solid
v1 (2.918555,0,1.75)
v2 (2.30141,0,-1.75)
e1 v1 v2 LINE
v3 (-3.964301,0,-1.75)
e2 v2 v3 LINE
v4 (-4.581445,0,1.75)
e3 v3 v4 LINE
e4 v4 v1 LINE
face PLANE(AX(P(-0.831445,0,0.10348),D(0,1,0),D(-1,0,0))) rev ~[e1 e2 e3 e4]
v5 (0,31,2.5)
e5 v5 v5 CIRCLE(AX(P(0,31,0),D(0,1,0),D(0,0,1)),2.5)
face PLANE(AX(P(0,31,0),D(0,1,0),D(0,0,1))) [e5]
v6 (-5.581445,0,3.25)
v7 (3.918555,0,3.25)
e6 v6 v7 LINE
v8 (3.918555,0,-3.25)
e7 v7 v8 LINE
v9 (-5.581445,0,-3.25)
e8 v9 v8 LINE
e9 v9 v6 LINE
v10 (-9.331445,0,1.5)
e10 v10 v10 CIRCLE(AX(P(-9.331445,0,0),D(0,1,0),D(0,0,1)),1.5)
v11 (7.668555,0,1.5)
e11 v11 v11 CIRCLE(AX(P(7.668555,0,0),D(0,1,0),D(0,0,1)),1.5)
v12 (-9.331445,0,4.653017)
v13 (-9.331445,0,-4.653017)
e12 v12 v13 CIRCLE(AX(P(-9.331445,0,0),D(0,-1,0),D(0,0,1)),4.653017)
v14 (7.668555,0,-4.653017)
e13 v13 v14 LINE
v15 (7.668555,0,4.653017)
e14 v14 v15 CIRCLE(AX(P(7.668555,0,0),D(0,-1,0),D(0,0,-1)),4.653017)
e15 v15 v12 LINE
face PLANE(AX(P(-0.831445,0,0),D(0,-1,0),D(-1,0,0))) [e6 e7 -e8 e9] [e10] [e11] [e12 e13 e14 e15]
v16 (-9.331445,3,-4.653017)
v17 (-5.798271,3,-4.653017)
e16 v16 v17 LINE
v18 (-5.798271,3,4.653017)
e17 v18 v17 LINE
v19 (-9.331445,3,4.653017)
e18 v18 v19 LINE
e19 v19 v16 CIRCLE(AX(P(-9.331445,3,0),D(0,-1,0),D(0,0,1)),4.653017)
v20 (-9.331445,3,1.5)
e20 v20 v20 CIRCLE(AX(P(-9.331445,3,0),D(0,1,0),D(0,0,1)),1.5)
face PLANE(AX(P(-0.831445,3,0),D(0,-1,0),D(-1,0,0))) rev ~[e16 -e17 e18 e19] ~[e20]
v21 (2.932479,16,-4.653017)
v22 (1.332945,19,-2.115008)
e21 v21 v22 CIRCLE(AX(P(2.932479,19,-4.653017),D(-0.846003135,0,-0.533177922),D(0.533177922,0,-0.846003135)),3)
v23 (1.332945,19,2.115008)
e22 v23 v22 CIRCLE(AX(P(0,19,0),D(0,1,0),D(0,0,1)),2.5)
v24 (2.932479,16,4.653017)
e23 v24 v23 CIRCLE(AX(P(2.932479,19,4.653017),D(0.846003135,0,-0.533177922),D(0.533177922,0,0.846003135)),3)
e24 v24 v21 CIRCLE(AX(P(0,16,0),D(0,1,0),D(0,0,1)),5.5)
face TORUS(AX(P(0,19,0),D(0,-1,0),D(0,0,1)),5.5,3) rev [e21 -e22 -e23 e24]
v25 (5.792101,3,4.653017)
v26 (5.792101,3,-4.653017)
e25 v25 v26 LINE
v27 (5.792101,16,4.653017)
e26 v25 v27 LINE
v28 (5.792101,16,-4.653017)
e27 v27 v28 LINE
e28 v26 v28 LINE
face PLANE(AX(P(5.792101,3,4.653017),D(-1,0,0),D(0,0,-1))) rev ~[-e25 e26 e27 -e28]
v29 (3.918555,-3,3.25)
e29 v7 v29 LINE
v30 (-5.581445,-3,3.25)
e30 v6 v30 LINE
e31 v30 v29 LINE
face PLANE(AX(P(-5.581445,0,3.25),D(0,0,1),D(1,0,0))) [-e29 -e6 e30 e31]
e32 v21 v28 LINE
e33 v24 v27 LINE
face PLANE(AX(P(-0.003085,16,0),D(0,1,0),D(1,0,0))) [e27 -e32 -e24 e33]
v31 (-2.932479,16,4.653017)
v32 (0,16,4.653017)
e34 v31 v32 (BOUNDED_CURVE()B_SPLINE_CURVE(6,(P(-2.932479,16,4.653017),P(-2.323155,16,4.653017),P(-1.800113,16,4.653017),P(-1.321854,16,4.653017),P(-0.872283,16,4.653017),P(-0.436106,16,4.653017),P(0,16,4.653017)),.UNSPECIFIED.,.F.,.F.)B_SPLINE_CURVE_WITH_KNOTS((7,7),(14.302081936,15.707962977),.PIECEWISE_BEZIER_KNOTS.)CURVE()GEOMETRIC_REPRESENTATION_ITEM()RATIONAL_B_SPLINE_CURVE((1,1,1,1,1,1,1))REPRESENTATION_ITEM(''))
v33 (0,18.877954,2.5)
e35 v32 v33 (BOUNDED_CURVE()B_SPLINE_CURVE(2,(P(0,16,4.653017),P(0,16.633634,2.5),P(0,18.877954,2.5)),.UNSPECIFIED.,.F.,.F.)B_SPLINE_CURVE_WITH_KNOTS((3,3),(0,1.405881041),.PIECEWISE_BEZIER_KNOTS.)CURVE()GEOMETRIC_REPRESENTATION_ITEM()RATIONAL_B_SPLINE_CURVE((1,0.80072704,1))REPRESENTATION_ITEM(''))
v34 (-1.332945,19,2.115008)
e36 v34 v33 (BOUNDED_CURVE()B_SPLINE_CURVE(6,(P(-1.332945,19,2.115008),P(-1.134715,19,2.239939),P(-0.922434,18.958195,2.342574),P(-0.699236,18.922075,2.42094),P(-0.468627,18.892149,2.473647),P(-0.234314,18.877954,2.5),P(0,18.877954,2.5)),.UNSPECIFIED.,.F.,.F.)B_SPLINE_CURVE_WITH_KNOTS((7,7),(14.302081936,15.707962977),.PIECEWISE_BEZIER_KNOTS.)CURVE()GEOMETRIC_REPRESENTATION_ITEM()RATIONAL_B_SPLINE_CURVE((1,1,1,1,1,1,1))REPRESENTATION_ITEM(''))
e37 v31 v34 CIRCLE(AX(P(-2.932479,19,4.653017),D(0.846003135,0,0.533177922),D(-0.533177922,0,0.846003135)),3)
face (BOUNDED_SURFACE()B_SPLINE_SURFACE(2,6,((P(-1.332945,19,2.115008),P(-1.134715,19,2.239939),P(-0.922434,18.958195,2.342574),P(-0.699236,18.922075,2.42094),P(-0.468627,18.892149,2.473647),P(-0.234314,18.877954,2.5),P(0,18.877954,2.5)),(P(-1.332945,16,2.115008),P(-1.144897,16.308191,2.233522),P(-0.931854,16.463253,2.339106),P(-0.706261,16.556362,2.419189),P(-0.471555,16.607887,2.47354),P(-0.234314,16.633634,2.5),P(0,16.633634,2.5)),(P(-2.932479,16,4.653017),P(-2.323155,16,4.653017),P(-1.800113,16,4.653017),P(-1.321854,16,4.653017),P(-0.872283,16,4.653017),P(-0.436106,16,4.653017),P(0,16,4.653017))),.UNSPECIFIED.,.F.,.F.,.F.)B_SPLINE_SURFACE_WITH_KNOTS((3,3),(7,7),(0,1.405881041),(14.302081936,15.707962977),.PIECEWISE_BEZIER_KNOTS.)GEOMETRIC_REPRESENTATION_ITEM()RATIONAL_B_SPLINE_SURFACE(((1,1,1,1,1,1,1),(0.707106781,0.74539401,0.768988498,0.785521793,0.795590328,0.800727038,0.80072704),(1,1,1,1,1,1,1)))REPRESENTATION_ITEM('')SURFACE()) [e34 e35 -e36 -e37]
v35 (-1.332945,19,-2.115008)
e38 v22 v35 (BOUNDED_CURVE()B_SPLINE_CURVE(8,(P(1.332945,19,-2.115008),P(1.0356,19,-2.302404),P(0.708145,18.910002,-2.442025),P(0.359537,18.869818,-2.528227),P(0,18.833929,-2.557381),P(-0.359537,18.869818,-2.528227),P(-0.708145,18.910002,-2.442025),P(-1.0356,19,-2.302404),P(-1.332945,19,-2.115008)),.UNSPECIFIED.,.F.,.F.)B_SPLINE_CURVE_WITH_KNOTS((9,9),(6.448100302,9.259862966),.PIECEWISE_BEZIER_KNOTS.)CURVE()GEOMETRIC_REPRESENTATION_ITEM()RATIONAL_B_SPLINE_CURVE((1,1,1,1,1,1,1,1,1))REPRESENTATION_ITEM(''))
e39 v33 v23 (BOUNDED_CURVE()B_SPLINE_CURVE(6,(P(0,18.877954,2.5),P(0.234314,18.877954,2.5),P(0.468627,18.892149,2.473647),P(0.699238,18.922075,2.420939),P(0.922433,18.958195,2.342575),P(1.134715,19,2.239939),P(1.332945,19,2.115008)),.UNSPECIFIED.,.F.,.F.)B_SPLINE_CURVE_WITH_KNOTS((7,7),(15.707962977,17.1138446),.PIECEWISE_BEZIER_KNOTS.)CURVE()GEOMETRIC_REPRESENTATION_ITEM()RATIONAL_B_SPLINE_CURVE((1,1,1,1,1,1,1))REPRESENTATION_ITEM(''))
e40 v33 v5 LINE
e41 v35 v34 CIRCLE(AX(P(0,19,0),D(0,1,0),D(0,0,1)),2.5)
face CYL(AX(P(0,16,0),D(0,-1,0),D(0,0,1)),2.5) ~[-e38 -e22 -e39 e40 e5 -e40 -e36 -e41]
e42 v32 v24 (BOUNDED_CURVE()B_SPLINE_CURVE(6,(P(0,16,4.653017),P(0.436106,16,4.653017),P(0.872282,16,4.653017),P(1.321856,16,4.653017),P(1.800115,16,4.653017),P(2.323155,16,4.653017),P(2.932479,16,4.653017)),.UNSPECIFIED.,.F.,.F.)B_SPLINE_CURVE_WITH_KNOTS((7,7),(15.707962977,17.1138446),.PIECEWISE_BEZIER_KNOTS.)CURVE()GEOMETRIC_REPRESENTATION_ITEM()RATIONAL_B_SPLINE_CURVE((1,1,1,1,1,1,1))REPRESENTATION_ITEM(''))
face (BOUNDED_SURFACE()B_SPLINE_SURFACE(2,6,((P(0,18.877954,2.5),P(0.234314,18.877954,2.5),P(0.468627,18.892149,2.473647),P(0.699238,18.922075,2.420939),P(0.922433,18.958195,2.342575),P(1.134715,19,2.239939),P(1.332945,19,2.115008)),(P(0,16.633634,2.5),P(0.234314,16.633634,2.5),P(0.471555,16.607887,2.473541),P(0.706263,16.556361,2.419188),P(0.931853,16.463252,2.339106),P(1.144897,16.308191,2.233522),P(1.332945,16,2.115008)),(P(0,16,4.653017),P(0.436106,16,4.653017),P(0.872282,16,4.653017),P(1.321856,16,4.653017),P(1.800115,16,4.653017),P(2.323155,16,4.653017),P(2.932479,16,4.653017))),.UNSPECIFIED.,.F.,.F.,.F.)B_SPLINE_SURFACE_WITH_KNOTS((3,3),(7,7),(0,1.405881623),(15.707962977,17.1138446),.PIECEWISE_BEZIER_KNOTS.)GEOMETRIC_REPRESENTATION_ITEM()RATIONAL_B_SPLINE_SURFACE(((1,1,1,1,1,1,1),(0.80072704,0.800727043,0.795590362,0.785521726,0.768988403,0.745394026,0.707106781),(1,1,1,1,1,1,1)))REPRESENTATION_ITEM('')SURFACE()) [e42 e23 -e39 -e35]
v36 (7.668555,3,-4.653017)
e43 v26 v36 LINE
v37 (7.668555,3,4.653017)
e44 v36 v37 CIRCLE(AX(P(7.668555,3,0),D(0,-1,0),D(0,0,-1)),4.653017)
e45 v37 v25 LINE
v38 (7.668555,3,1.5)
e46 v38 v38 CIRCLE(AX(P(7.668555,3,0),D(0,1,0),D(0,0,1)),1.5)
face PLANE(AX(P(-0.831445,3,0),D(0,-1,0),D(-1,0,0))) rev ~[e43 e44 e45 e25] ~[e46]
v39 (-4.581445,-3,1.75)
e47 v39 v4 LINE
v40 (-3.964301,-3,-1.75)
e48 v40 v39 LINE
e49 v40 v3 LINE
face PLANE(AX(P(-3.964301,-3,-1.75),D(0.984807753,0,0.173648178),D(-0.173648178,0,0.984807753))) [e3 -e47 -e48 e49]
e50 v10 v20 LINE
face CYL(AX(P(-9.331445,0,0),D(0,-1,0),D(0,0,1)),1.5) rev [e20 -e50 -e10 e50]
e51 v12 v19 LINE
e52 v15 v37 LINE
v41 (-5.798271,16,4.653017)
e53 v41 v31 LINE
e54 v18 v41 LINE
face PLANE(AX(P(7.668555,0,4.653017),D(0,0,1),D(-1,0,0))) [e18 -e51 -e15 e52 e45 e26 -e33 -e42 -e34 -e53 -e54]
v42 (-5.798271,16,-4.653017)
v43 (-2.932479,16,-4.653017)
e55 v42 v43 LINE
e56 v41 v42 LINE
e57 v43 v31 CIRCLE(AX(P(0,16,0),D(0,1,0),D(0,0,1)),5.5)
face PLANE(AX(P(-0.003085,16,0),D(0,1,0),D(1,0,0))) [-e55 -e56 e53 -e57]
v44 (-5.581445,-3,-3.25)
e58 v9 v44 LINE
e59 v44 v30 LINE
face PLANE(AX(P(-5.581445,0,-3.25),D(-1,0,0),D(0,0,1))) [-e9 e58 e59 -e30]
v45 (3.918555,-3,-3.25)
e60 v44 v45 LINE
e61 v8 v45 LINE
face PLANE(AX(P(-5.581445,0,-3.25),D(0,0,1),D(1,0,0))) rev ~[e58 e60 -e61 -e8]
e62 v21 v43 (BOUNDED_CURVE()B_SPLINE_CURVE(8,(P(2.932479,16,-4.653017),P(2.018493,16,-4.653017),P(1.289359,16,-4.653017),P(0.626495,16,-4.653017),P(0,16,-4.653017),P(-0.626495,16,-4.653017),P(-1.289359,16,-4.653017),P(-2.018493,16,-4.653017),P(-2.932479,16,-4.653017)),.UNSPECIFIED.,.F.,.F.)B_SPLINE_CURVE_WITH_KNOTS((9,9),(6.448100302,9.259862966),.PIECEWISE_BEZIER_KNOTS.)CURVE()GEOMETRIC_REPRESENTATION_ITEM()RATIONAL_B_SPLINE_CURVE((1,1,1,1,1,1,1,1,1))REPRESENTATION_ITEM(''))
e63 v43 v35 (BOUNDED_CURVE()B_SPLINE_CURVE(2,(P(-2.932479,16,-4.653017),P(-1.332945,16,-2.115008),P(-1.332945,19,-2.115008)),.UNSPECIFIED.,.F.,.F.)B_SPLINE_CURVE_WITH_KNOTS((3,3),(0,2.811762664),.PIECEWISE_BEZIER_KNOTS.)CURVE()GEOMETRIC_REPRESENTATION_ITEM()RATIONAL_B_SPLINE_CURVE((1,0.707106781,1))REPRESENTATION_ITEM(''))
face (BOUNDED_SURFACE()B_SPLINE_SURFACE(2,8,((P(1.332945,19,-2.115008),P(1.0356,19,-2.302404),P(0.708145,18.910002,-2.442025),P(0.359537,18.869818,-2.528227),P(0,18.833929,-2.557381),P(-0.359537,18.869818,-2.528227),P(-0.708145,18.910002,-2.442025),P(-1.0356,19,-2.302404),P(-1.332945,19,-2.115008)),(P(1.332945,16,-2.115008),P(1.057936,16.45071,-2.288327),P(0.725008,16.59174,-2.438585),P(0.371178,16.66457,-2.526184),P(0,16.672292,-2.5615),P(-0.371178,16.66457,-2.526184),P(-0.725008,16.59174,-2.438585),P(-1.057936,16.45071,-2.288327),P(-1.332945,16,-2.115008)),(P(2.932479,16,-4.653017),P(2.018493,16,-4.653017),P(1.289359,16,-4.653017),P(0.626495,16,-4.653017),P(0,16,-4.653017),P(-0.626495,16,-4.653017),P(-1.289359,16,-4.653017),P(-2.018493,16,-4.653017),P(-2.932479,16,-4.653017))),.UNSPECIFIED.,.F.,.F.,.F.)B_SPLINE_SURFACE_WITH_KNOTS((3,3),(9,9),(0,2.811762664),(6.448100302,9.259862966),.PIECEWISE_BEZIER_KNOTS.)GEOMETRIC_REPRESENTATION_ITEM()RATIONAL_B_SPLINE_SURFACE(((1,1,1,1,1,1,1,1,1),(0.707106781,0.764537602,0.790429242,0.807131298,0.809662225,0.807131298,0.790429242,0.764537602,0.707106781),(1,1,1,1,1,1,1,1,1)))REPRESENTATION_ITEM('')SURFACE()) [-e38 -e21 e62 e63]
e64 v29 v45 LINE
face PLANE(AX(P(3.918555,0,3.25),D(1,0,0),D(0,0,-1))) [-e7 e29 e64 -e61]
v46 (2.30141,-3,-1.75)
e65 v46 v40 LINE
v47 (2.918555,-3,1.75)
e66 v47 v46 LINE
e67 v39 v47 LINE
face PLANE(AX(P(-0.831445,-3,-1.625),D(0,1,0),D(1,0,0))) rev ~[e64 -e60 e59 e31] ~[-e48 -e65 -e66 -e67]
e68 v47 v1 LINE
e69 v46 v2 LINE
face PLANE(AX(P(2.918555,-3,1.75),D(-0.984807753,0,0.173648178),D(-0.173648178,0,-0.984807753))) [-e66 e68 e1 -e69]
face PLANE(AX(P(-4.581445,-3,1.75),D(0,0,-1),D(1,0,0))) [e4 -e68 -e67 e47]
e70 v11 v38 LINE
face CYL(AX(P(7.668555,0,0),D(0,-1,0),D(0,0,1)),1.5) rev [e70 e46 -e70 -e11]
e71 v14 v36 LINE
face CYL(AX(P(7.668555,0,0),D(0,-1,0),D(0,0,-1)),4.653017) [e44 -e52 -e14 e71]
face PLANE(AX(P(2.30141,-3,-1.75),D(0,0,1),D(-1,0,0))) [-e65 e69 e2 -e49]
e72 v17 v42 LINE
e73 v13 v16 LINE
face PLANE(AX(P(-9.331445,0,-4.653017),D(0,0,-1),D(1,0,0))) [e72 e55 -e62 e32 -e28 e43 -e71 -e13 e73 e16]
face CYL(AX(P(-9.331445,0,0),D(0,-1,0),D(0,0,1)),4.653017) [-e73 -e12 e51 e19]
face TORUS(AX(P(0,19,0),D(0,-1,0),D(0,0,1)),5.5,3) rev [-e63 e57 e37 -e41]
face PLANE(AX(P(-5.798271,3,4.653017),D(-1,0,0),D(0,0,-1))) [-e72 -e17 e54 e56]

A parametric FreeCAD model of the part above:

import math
import FreeCAD as App
import Part
import Sketcher
from FreeCAD import Vector
Q = App.Units.Quantity


def edges_at(feature, points):
    """Names of the edges that pass closest to the given points."""
    edges = feature.Shape.Edges
    near = lambda p: min(range(len(edges)), key=lambda i: edges[i].distToShape(Part.Vertex(*p))[0])
    return sorted({f"Edge{near(p) + 1}" for p in points})


def add_polygon(sketch, points):
    """Adds a closed chain of lines whose ends are joined by coincident constraints."""
    first, n = sketch.GeometryCount, len(points)
    for a, b in zip(points, points[1:] + points[:1]):
        sketch.addGeometry(Part.LineSegment(App.Vector(*a, 0), App.Vector(*b, 0)), False)
    for i in range(n):
        sketch.addConstraint(Sketcher.Constraint("Coincident", first + i, 2, first + (i + 1) % n, 1))

doc = App.newDocument("Part")
body = doc.addObject("PartDesign::Body", "Body")

# Sketch on XZ plane
sketch1 = body.newObject("Sketcher::SketchObject", "Sketch")
sketch1.AttachmentSupport = (doc.getObject("XZ_Plane"), [""])
sketch1.MapMode = "FlatFace"
sketch1.addGeometry(Part.LineSegment(Vector(7.7, -4.7, 0), Vector(-9.3, -4.7, 0)), False)
sketch1.addGeometry(Part.ArcOfCircle(Part.Circle(Vector(-9.3, 0, 0), Vector(0, 0, 1), 4.7), math.radians(90), math.radians(270)), False)
sketch1.addGeometry(Part.LineSegment(Vector(-9.3, 4.7, 0), Vector(7.7, 4.7, 0)), False)
sketch1.addGeometry(Part.ArcOfCircle(Part.Circle(Vector(7.7, 0, 0), Vector(0, 0, 1), 4.7), math.radians(-90), math.radians(90)), False)
sketch1.addConstraint(Sketcher.Constraint("Tangent", 0, 2, 1, 2))
sketch1.addConstraint(Sketcher.Constraint("Tangent", 1, 1, 2, 1))
sketch1.addConstraint(Sketcher.Constraint("Tangent", 2, 2, 3, 2))
sketch1.addConstraint(Sketcher.Constraint("Tangent", 3, 1, 0, 1))
sketch1.addConstraint(Sketcher.Constraint("Horizontal", 0))
sketch1.addConstraint(Sketcher.Constraint("Horizontal", 2))
sketch1.addConstraint(Sketcher.Constraint("PointOnObject", 1, 3, -1))
sketch1.addConstraint(Sketcher.Constraint("DistanceX", 0, 2, 0, 1, 17.0))
sketch1.addConstraint(Sketcher.Constraint("Radius", 1, 4.653017))
sketch1.addConstraint(Sketcher.Constraint("DistanceX", 1, 3, -1, 1, 9.331445))
pad1 = body.newObject("PartDesign::Pad", "Pad")
pad1.Profile = sketch1
pad1.Length = 3
pad1.Reversed = True

# Sketch on XZ plane
sketch2 = body.newObject("Sketcher::SketchObject", "Sketch001")
sketch2.AttachmentSupport = (doc.getObject("XZ_Plane"), [""])
sketch2.MapMode = "FlatFace"
add_polygon(sketch2, [(-6, -3), (-6, 3), (4, 3), (4, -3)])  # lines 0-3
sketch2.addConstraint(Sketcher.Constraint("Vertical", 0))
sketch2.addConstraint(Sketcher.Constraint("Horizontal", 1))
sketch2.addConstraint(Sketcher.Constraint("Vertical", 2))
sketch2.addConstraint(Sketcher.Constraint("Horizontal", 3))
sketch2.addConstraint(Sketcher.Constraint("DistanceX", 1, 1, 1, 2, 9.5))
sketch2.addConstraint(Sketcher.Constraint("DistanceY", 0, 1, 0, 2, 6.5))
sketch2.addConstraint(Sketcher.Constraint("DistanceY", -1, 1, 0, 2, 3.25))
sketch2.addConstraint(Sketcher.Constraint("DistanceX", 0, 2, -1, 1, 5.581445))
pad2 = body.newObject("PartDesign::Pad", "Pad001")
pad2.Profile = sketch2
pad2.Length = 3

# Sketch on XZ plane
sketch3 = body.newObject("Sketcher::SketchObject", "Sketch002")
sketch3.AttachmentSupport = (doc.getObject("XZ_Plane"), [""])
sketch3.MapMode = "FlatFace"
sketch3.addGeometry(Part.Circle(Vector(-9.3, 0, 0), Vector(0, 0, 1), 1.5), False)
sketch3.addGeometry(Part.Circle(Vector(7.7, 0, 0), Vector(0, 0, 1), 1.5), False)
sketch3.addConstraint(Sketcher.Constraint("Equal", 0, 1))
sketch3.addConstraint(Sketcher.Constraint("PointOnObject", 0, 3, -1))
sketch3.addConstraint(Sketcher.Constraint("PointOnObject", 1, 3, -1))
sketch3.addConstraint(Sketcher.Constraint("Diameter", 0, 3.0))
sketch3.addConstraint(Sketcher.Constraint("DistanceX", 0, 3, 1, 3, 17.0))
sketch3.addConstraint(Sketcher.Constraint("DistanceX", 0, 3, -1, 1, 9.331445))
pocket1 = body.newObject("PartDesign::Pocket", "Pocket")
pocket1.Profile = sketch3
pocket1.Length = 3

# Sketch on XZ plane
sketch4 = body.newObject("Sketcher::SketchObject", "Sketch003")
sketch4.AttachmentSupport = (doc.getObject("XZ_Plane"), [""])
sketch4.MapMode = "FlatFace"
sketch4.AttachmentOffset = App.Placement(Vector(0, 0, 3), App.Rotation())
add_polygon(sketch4, [(2.9, 1.8), (-4.6, 1.8), (-4, -1.8), (2.3, -1.8)])  # lines 0-3
sketch4.addConstraint(Sketcher.Constraint("Horizontal", 0))
sketch4.addConstraint(Sketcher.Constraint("Horizontal", 2))
sketch4.addConstraint(Sketcher.Constraint("Equal", 1, 3))
sketch4.addConstraint(Sketcher.Constraint("Angle", 1, Q("-80 deg")))
sketch4.addConstraint(Sketcher.Constraint("DistanceX", 0, 2, 0, 1, 7.5))
sketch4.addConstraint(Sketcher.Constraint("DistanceY", 1, 2, 0, 2, 3.5))
sketch4.addConstraint(Sketcher.Constraint("DistanceY", -1, 1, 0, 2, 1.75))
sketch4.addConstraint(Sketcher.Constraint("DistanceX", 1, 2, -1, 1, 3.964301))
pocket2 = body.newObject("PartDesign::Pocket", "Pocket001")
pocket2.Profile = sketch4
pocket2.Length = 3

# Sketch on XZ plane
sketch5 = body.newObject("Sketcher::SketchObject", "Sketch004")
sketch5.AttachmentSupport = (doc.getObject("XZ_Plane"), [""])
sketch5.MapMode = "FlatFace"
sketch5.AttachmentOffset = App.Placement(Vector(0, 0, -3), App.Rotation())
add_polygon(sketch5, [(-6, -5), (-6, 5), (6, 5), (6, -5)])  # lines 0-3
sketch5.addConstraint(Sketcher.Constraint("Vertical", 0))
sketch5.addConstraint(Sketcher.Constraint("Horizontal", 1))
sketch5.addConstraint(Sketcher.Constraint("Vertical", 2))
sketch5.addConstraint(Sketcher.Constraint("Horizontal", 3))
sketch5.addConstraint(Sketcher.Constraint("DistanceX", -1, 1, 1, 2, 5.792101))
sketch5.addConstraint(Sketcher.Constraint("DistanceX", 1, 1, 1, 2, 11.590372))
sketch5.addConstraint(Sketcher.Constraint("DistanceY", 0, 1, 0, 2, 9.306034))
sketch5.addConstraint(Sketcher.Constraint("DistanceY", -1, 1, 0, 2, 4.653017))
pad3 = body.newObject("PartDesign::Pad", "Pad002")
pad3.Profile = sketch5
pad3.Length = 13
pad3.Reversed = True

# Sketch on XZ plane
sketch6 = body.newObject("Sketcher::SketchObject", "Sketch005")
sketch6.AttachmentSupport = (doc.getObject("XZ_Plane"), [""])
sketch6.MapMode = "FlatFace"
sketch6.AttachmentOffset = App.Placement(Vector(0, 0, -16), App.Rotation())
sketch6.addGeometry(Part.Circle(Vector(0, 0, 0), Vector(0, 0, 1), 2.5), False)
sketch6.addConstraint(Sketcher.Constraint("Coincident", 0, 3, -1, 1))
sketch6.addConstraint(Sketcher.Constraint("Diameter", 0, 5.0))
pad4 = body.newObject("PartDesign::Pad", "Pad003")
pad4.Profile = sketch6
pad4.Length = 15
pad4.Reversed = True
doc.recompute()

fillet = body.newObject("PartDesign::Fillet", "Fillet")
fillet.Base = (pad4, edges_at(pad4, [(0, 16, -2.5)]))
fillet.Radius = 3

doc.recompute()
